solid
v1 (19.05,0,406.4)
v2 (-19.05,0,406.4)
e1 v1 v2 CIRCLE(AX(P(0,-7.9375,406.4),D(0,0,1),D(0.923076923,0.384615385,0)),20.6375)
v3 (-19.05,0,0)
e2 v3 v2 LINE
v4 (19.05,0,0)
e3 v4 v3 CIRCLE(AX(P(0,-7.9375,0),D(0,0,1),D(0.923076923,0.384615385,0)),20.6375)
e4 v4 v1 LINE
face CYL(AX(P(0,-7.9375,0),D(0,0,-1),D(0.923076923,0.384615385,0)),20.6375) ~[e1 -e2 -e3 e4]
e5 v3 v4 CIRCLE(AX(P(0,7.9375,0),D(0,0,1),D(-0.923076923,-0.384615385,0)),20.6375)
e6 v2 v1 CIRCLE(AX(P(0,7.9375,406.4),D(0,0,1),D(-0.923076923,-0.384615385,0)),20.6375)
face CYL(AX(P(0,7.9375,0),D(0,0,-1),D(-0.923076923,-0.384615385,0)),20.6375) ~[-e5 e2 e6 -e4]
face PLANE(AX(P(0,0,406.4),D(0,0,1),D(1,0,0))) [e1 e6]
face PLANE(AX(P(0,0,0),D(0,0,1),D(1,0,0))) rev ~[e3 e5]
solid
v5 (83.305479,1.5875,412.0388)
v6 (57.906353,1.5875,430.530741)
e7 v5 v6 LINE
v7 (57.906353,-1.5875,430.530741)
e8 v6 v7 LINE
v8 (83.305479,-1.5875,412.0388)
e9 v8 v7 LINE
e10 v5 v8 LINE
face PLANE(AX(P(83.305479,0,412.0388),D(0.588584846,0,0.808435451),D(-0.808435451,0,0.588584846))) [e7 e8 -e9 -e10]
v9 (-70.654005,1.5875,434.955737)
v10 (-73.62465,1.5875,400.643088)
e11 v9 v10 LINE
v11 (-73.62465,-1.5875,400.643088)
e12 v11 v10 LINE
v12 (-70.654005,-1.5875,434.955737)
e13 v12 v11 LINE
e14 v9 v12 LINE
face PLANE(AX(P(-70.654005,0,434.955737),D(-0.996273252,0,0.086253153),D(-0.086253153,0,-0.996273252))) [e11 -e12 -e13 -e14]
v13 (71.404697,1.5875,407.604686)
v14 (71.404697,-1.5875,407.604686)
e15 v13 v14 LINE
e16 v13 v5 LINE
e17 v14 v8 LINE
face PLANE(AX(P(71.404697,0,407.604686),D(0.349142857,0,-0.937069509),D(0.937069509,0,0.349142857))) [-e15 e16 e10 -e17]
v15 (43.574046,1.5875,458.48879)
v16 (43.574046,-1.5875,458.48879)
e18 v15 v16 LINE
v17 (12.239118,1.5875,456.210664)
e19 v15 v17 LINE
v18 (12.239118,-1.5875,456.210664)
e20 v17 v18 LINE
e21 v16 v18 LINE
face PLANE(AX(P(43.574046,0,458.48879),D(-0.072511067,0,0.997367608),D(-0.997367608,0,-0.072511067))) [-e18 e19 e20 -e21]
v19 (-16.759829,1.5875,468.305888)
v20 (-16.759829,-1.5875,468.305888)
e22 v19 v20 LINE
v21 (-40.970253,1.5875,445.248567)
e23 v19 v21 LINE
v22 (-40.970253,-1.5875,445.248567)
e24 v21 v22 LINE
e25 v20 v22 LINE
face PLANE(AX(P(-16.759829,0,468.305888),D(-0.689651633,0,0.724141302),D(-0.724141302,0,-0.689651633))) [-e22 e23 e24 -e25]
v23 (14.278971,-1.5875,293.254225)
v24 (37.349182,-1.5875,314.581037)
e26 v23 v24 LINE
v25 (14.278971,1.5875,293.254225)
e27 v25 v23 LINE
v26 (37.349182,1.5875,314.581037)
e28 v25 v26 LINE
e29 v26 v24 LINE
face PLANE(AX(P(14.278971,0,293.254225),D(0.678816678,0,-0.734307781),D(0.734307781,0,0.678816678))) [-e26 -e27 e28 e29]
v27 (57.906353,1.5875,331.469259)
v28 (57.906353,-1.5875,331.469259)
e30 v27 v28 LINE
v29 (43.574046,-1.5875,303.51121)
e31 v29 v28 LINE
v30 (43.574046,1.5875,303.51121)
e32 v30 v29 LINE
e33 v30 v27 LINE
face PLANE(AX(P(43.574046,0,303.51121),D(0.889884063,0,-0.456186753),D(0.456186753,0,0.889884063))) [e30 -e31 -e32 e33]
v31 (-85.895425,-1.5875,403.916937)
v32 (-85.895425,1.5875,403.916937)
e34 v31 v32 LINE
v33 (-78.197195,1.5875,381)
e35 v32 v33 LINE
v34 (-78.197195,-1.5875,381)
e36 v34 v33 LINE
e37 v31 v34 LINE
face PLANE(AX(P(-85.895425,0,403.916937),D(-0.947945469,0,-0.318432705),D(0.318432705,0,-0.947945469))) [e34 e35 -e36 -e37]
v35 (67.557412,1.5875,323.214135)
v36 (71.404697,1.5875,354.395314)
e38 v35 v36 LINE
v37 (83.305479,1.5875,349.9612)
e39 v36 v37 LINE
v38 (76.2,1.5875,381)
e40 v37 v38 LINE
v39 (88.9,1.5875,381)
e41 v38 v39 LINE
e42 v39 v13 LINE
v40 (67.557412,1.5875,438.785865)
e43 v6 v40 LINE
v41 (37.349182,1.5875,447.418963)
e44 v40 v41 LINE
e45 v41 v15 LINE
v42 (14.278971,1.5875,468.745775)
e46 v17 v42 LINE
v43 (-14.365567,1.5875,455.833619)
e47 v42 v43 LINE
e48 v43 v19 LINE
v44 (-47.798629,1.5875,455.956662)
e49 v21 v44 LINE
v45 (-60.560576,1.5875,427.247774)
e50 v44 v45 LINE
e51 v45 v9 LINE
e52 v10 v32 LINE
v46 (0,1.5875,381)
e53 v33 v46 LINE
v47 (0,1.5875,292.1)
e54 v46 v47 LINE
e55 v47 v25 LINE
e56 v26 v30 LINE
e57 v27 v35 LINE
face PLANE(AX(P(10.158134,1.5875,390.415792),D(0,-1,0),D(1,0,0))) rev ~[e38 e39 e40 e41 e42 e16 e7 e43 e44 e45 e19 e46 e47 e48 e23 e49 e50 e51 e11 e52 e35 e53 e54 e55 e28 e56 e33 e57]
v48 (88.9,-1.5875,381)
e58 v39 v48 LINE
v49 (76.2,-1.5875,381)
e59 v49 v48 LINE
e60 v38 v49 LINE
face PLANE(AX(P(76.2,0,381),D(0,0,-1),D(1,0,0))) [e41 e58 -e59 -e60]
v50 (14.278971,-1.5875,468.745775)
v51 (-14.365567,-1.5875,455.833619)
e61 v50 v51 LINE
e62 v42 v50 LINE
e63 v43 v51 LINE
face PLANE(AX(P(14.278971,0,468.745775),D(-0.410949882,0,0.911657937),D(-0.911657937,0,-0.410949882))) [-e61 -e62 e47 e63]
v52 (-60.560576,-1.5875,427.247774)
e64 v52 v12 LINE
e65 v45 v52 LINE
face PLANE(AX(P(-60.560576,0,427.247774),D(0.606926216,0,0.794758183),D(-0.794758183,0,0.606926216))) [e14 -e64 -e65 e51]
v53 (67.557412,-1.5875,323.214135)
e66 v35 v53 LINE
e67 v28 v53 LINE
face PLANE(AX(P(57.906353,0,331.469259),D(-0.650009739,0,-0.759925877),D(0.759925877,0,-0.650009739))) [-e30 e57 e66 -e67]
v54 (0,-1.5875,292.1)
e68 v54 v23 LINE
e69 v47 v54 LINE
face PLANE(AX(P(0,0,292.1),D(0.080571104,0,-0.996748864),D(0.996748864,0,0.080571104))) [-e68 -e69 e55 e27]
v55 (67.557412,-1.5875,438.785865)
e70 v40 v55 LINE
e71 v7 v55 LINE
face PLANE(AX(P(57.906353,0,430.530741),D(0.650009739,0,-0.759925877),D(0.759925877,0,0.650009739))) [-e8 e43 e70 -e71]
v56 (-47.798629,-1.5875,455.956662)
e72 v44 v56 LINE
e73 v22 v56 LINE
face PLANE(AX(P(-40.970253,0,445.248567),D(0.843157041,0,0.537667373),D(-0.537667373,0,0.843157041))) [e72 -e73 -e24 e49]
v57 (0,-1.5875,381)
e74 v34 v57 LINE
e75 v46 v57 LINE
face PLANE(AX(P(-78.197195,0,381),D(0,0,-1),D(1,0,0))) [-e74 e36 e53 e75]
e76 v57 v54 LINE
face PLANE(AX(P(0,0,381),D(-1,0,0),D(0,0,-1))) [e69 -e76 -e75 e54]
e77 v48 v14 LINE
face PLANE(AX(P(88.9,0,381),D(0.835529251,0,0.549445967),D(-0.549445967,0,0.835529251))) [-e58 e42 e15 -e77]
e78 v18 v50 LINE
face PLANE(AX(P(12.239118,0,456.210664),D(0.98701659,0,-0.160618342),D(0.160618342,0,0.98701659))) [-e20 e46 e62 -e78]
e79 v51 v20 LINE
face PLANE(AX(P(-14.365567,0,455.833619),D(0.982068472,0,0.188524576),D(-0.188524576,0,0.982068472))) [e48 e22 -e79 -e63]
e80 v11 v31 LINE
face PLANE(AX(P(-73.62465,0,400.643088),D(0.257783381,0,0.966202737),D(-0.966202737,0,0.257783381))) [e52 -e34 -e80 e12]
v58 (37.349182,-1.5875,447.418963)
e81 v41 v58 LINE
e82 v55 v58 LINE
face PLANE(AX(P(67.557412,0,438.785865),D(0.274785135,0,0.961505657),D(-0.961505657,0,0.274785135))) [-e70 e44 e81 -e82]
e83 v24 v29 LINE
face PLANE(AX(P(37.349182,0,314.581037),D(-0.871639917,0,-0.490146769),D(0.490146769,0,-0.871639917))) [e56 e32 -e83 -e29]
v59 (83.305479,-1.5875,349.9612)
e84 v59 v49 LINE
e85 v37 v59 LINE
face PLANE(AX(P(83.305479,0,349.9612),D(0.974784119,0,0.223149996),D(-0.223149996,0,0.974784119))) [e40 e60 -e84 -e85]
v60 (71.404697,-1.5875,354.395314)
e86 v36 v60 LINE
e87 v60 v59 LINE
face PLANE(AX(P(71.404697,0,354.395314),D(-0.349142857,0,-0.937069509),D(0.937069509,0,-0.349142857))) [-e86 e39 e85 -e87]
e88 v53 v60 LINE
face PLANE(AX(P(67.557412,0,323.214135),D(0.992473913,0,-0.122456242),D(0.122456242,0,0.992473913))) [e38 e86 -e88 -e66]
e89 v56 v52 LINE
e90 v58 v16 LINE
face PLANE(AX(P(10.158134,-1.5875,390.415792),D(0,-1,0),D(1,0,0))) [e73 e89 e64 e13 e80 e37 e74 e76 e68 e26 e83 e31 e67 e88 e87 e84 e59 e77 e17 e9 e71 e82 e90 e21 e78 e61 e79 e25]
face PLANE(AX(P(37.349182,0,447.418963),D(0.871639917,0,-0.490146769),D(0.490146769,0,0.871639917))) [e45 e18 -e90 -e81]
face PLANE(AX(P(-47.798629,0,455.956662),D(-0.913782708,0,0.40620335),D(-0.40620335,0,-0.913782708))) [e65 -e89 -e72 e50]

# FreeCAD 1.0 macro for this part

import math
import FreeCAD as App
import Part
import Sketcher
Q = App.Units.Quantity

doc = App.newDocument("Part")
params = doc.addObject("Spreadsheet::Sheet", "Params")
for row, (alias, value) in enumerate([
    ("sketch1_radius", "0.8125 in"),
    ("pad1_length", "16 in"),
    ("sketch2_width", "0.5 in"),
    ("sketch2_height", "3.5 in"),
    ("sketch2_length", "0.5 in"),
    ("pad2_length", "0.0625 in"),
    ("pad2_length2", "0.0625 in"),
], start=1):
    params.set(f"A{row}", alias)
    params.set(f"B{row}", "=" + value)
    params.setAlias(f"B{row}", alias)

body = doc.addObject("PartDesign::Body", "Body")

# Sketch on XY plane
sketch1 = body.newObject("Sketcher::SketchObject", "Sketch")
sketch1.AttachmentSupport = (doc.getObject("XY_Plane"), [""])
sketch1.MapMode = "FlatFace"
sketch1.addGeometry([
    Part.ArcOfCircle(Part.Circle(App.Vector(0, 8, 0), App.Vector(0, 0, 1), 21), math.radians(-157), math.radians(-23)),
    Part.ArcOfCircle(Part.Circle(App.Vector(0, -8, 0), App.Vector(0, 0, 1), 21), math.radians(23), math.radians(157)),
], False)
sketch1.addConstraint([
    Sketcher.Constraint("Coincident", 0, 1, 1, 2),
    Sketcher.Constraint("Coincident", 1, 1, 0, 2),
    Sketcher.Constraint("Equal", 0, 1),
    Sketcher.Constraint("Symmetric", 0, 3, 1, 3, -1, 1),
    Sketcher.Constraint("PointOnObject", 0, 3, -2),
    Sketcher.Constraint("Radius", 0, Q("0.8125 in")),
    Sketcher.Constraint("DistanceX", 0, 1, 1, 1, Q("1.5 in")),
])
sketch1.setExpression("Constraints[5]", "Params.sketch1_radius")
pad1 = body.newObject("PartDesign::Pad", "Pad")
pad1.Profile = sketch1
pad1.setExpression("Length", "Params.pad1_length")
body2 = doc.addObject("PartDesign::Body", "Body001")

# Sketch on XZ plane
sketch2 = body2.newObject("Sketcher::SketchObject", "Sketch001")
sketch2.AttachmentSupport = (doc.getObject("XZ_Plane001"), [""])
sketch2.MapMode = "FlatFace"
sketch2.addGeometry([
    Part.LineSegment(App.Vector(-78, 381, 0), App.Vector(0, 381, 0)),  # 0
    Part.LineSegment(App.Vector(0, 381, 0), App.Vector(0, 292, 0)),  # 1
    Part.LineSegment(App.Vector(0, 292, 0), App.Vector(14, 293, 0)),  # 2
    Part.LineSegment(App.Vector(14, 293, 0), App.Vector(37, 315, 0)),  # 3
    Part.LineSegment(App.Vector(37, 315, 0), App.Vector(44, 304, 0)),  # 4
    Part.LineSegment(App.Vector(44, 304, 0), App.Vector(58, 331, 0)),  # 5
    Part.LineSegment(App.Vector(58, 331, 0), App.Vector(68, 323, 0)),  # 6
    Part.LineSegment(App.Vector(68, 323, 0), App.Vector(71, 354, 0)),  # 7
    Part.LineSegment(App.Vector(71, 354, 0), App.Vector(83, 350, 0)),  # 8
    Part.LineSegment(App.Vector(83, 350, 0), App.Vector(76, 381, 0)),  # 9
    Part.LineSegment(App.Vector(76, 381, 0), App.Vector(89, 381, 0)),  # 10
    Part.LineSegment(App.Vector(89, 381, 0), App.Vector(71, 408, 0)),  # 11
    Part.LineSegment(App.Vector(71, 408, 0), App.Vector(83, 412, 0)),  # 12
    Part.LineSegment(App.Vector(83, 412, 0), App.Vector(58, 431, 0)),  # 13
    Part.LineSegment(App.Vector(58, 431, 0), App.Vector(68, 439, 0)),  # 14
    Part.LineSegment(App.Vector(68, 439, 0), App.Vector(37, 447, 0)),  # 15
    Part.LineSegment(App.Vector(37, 447, 0), App.Vector(44, 458, 0)),  # 16
    Part.LineSegment(App.Vector(44, 458, 0), App.Vector(12, 456, 0)),  # 17
    Part.LineSegment(App.Vector(12, 456, 0), App.Vector(14, 469, 0)),  # 18
    Part.LineSegment(App.Vector(14, 469, 0), App.Vector(-14, 456, 0)),  # 19
    Part.LineSegment(App.Vector(-14, 456, 0), App.Vector(-17, 468, 0)),  # 20
    Part.LineSegment(App.Vector(-17, 468, 0), App.Vector(-41, 445, 0)),  # 21
    Part.LineSegment(App.Vector(-41, 445, 0), App.Vector(-48, 456, 0)),  # 22
    Part.LineSegment(App.Vector(-48, 456, 0), App.Vector(-61, 427, 0)),  # 23
    Part.LineSegment(App.Vector(-61, 427, 0), App.Vector(-71, 435, 0)),  # 24
    Part.LineSegment(App.Vector(-71, 435, 0), App.Vector(-74, 401, 0)),  # 25
    Part.LineSegment(App.Vector(-74, 401, 0), App.Vector(-86, 404, 0)),  # 26
    Part.LineSegment(App.Vector(-86, 404, 0), App.Vector(-78, 381, 0)),  # 27
], False)
sketch2.addConstraint([
    Sketcher.Constraint("Coincident", 0, 2, 1, 1),
    Sketcher.Constraint("Coincident", 1, 2, 2, 1),
    Sketcher.Constraint("Coincident", 2, 2, 3, 1),
    Sketcher.Constraint("Coincident", 3, 2, 4, 1),
    Sketcher.Constraint("Coincident", 4, 2, 5, 1),
    Sketcher.Constraint("Coincident", 5, 2, 6, 1),
    Sketcher.Constraint("Coincident", 6, 2, 7, 1),
    Sketcher.Constraint("Coincident", 7, 2, 8, 1),
    Sketcher.Constraint("Coincident", 8, 2, 9, 1),
    Sketcher.Constraint("Coincident", 9, 2, 10, 1),
    Sketcher.Constraint("Coincident", 10, 2, 11, 1),
    Sketcher.Constraint("Coincident", 11, 2, 12, 1),
    Sketcher.Constraint("Coincident", 12, 2, 13, 1),
    Sketcher.Constraint("Coincident", 13, 2, 14, 1),
    Sketcher.Constraint("Coincident", 14, 2, 15, 1),
    Sketcher.Constraint("Coincident", 15, 2, 16, 1),
    Sketcher.Constraint("Coincident", 16, 2, 17, 1),
    Sketcher.Constraint("Coincident", 17, 2, 18, 1),
    Sketcher.Constraint("Coincident", 18, 2, 19, 1),
    Sketcher.Constraint("Coincident", 19, 2, 20, 1),
    Sketcher.Constraint("Coincident", 20, 2, 21, 1),
    Sketcher.Constraint("Coincident", 21, 2, 22, 1),
    Sketcher.Constraint("Coincident", 22, 2, 23, 1),
    Sketcher.Constraint("Coincident", 23, 2, 24, 1),
    Sketcher.Constraint("Coincident", 24, 2, 25, 1),
    Sketcher.Constraint("Coincident", 25, 2, 26, 1),
    Sketcher.Constraint("Coincident", 26, 2, 27, 1),
    Sketcher.Constraint("Coincident", 27, 2, 0, 1),
    Sketcher.Constraint("Horizontal", 0),
    Sketcher.Constraint("Vertical", 1),
    Sketcher.Constraint("Horizontal", 10),
    Sketcher.Constraint("PointOnObject", 0, 2, -2),
    Sketcher.Constraint("Horizontal", 0, 2, 9, 2),
    Sketcher.Constraint("Vertical", 7, 2, 11, 2),
    Sketcher.Constraint("Vertical", 8, 2, 12, 2),
    Sketcher.Constraint("Vertical", 5, 2, 13, 2),
    Sketcher.Constraint("Vertical", 6, 2, 14, 2),
    Sketcher.Constraint("Vertical", 3, 2, 15, 2),
    Sketcher.Constraint("Vertical", 4, 2, 16, 2),
    Sketcher.Constraint("Vertical", 2, 2, 18, 2),
    Sketcher.Constraint("Equal", 3, 5),
    Sketcher.Constraint("Equal", 4, 6),
    Sketcher.Constraint("Equal", 5, 7),
    Sketcher.Constraint("Equal", 6, 8),
    Sketcher.Constraint("Equal", 9, 11),
    Sketcher.Constraint("Equal", 8, 12),
    Sketcher.Constraint("Equal", 7, 13),
    Sketcher.Constraint("Equal", 12, 14),
    Sketcher.Constraint("Equal", 13, 15),
    Sketcher.Constraint("Equal", 14, 16),
    Sketcher.Constraint("Equal", 15, 17),
    Sketcher.Constraint("Equal", 16, 18),
    Sketcher.Constraint("Equal", 18, 20),
    Sketcher.Constraint("Equal", 20, 22),
    Sketcher.Constraint("Equal", 17, 23),
    Sketcher.Constraint("Equal", 22, 24),
    Sketcher.Constraint("Equal", 24, 26),
    Sketcher.Constraint("DistanceX", 10, 1, 10, 2, Q("0.5 in")),
    Sketcher.Constraint("DistanceY", 1, 2, 1, 1, Q("3.5 in")),
    Sketcher.Constraint("DistanceY", -1, 1, 0, 2, Q("15 in")),
    Sketcher.Constraint("DistanceX", -1, 1, 9, 2, Q("3 in")),
    Sketcher.Constraint("Distance", 4, Q("0.5 in")),
    Sketcher.Constraint("DistanceY", 22, 2, 17, 2, Q("0.0100001 in")),
    Sketcher.Constraint("DistanceY", -1, 1, 8, 2, Q("13.778 in")),
    Sketcher.Constraint("DistanceY", -1, 1, 12, 2, Q("16.222 in")),
    Sketcher.Constraint("DistanceX", 20, 2, 18, 2, Q("1.222 in")),
    Sketcher.Constraint("DistanceX", 22, 2, 20, 2, Q("1.222 in")),
    Sketcher.Constraint("DistanceY", 26, 2, 24, 2, Q("1.222 in")),
    Sketcher.Constraint("DistanceY", 16, 2, 20, 2, Q("0.3864999 in")),
    Sketcher.Constraint("Distance", 25, Q("34.441002 mm")),
    Sketcher.Constraint("DistanceY", 3, 2, 6, 2, Q("8.633098 mm")),
    Sketcher.Constraint("DistanceY", 14, 2, 15, 2, Q("8.633098 mm")),
    Sketcher.Constraint("DistanceY", 15, 2, 17, 2, Q("8.791701 mm")),
    Sketcher.Constraint("Distance", 3, Q("31.417631 mm")),
    Sketcher.Constraint("Distance", 19, Q("31.420269 mm")),
    Sketcher.Constraint("DistanceX", 0, 1, 0, 2, Q("78.197195 mm")),
    Sketcher.Constraint("DistanceX", -1, 1, 2, 2, Q("14.278971 mm")),
    Sketcher.Constraint("DistanceY", -1, 1, 4, 2, Q("303.51121 mm")),
    Sketcher.Constraint("DistanceY", -1, 1, 5, 2, Q("331.469259 mm")),
    Sketcher.Constraint("DistanceX", -1, 1, 6, 2, Q("67.557412 mm")),
    Sketcher.Constraint("DistanceX", 25, 2, -1, 1, Q("73.62465 mm")),
    Sketcher.Constraint("DistanceY", -1, 1, 25, 2, Q("400.643088 mm")),
    Sketcher.Constraint("DistanceY", 21, 2, 20, 2, Q("23.057321 mm")),
    Sketcher.Constraint("DistanceY", 23, 2, 22, 2, Q("28.708888 mm")),
])
sketch2.setExpression("Constraints[57]", "Params.sketch2_width")
sketch2.setExpression("Constraints[58]", "Params.sketch2_height")
sketch2.setExpression("Constraints[61]", "Params.sketch2_length")
pad2 = body2.newObject("PartDesign::Pad", "Pad001")
pad2.Profile = sketch2
pad2.Type = "TwoLengths"
pad2.setExpression("Length", "Params.pad2_length")
pad2.setExpression("Length2", "Params.pad2_length2")

doc.recompute()
